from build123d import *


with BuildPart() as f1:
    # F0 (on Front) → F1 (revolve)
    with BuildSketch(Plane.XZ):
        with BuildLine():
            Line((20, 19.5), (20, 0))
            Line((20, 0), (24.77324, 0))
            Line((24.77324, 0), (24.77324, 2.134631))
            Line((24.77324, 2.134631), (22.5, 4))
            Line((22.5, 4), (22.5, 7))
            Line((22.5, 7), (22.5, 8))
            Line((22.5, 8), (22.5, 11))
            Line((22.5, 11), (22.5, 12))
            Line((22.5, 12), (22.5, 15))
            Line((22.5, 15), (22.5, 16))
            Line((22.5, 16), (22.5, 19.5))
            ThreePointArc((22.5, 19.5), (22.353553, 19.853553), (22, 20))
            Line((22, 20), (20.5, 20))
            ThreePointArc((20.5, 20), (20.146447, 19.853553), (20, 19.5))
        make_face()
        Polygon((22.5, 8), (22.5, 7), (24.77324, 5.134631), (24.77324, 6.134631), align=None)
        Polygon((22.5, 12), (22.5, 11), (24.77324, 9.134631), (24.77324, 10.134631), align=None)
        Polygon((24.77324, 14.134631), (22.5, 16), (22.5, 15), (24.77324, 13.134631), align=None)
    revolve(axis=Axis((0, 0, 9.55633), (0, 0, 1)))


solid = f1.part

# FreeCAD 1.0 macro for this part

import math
import FreeCAD as App
import Part
import Sketcher
from FreeCAD import Vector

doc = App.newDocument("Part")
params = doc.addObject("Spreadsheet::Sheet", "Params")
for row, (alias, value) in enumerate([
    ("sketch1_radius", "0.500001 mm"),
    ("sketch1_height", "3 mm"),
    ("sketch1_height2", "1 mm"),
    ("sketch1_width", "1.5 mm"),
    ("sketch1_height3", "19.5 mm"),
    ("revolution_angle", "360 deg"),
], start=1):
    params.set(f"A{row}", alias)
    params.set(f"B{row}", "=" + value)
    params.setAlias(f"B{row}", alias)

body = doc.addObject("PartDesign::Body", "Body")

# Sketch on XZ plane
sketch1 = body.newObject("Sketcher::SketchObject", "Sketch")
sketch1.AttachmentSupport = (doc.getObject("XZ_Plane"), [""])
sketch1.MapMode = "FlatFace"
sketch1.addGeometry([
    Part.LineSegment(Vector(20, 19.5, 0), Vector(20, 0, 0)),  # 0
    Part.LineSegment(Vector(20, 0, 0), Vector(24.8, 0, 0)),  # 1
    Part.LineSegment(Vector(24.8, 0, 0), Vector(24.8, 2.1, 0)),  # 2
    Part.LineSegment(Vector(24.8, 2.1, 0), Vector(22.5, 4, 0)),  # 3
    Part.LineSegment(Vector(22.5, 4, 0), Vector(22.5, 7, 0)),  # 4
    Part.LineSegment(Vector(22.5, 7, 0), Vector(24.8, 5.1, 0)),  # 5
    Part.LineSegment(Vector(24.8, 5.1, 0), Vector(24.8, 6.1, 0)),  # 6
    Part.LineSegment(Vector(24.8, 6.1, 0), Vector(22.5, 8, 0)),  # 7
    Part.LineSegment(Vector(22.5, 8, 0), Vector(22.5, 11, 0)),  # 8
    Part.LineSegment(Vector(22.5, 11, 0), Vector(24.8, 9.1, 0)),  # 9
    Part.LineSegment(Vector(24.8, 9.1, 0), Vector(24.8, 10.1, 0)),  # 10
    Part.LineSegment(Vector(24.8, 10.1, 0), Vector(22.5, 12, 0)),  # 11
    Part.LineSegment(Vector(22.5, 12, 0), Vector(22.5, 15, 0)),  # 12
    Part.LineSegment(Vector(22.5, 15, 0), Vector(24.8, 13.1, 0)),  # 13
    Part.LineSegment(Vector(24.8, 13.1, 0), Vector(24.8, 14.1, 0)),  # 14
    Part.LineSegment(Vector(24.8, 14.1, 0), Vector(22.5, 16, 0)),  # 15
    Part.LineSegment(Vector(22.5, 16, 0), Vector(22.5, 19.5, 0)),  # 16
    Part.ArcOfCircle(Part.Circle(Vector(22, 19.5, 0), Vector(0, 0, 1), 0.5), math.radians(0), math.radians(90)),  # 17
    Part.LineSegment(Vector(22, 20, 0), Vector(20.5, 20, 0)),  # 18
    Part.ArcOfCircle(Part.Circle(Vector(20.5, 19.5, 0), Vector(0, 0, 1), 0.5), math.radians(90), math.radians(180)),  # 19
], False)
sketch1.addConstraint([
    Sketcher.Constraint("Coincident", 0, 2, 1, 1),
    Sketcher.Constraint("Coincident", 1, 2, 2, 1),
    Sketcher.Constraint("Coincident", 2, 2, 3, 1),
    Sketcher.Constraint("Coincident", 3, 2, 4, 1),
    Sketcher.Constraint("Coincident", 4, 2, 5, 1),
    Sketcher.Constraint("Coincident", 5, 2, 6, 1),
    Sketcher.Constraint("Coincident", 6, 2, 7, 1),
    Sketcher.Constraint("Coincident", 7, 2, 8, 1),
    Sketcher.Constraint("Coincident", 8, 2, 9, 1),
    Sketcher.Constraint("Coincident", 9, 2, 10, 1),
    Sketcher.Constraint("Coincident", 10, 2, 11, 1),
    Sketcher.Constraint("Coincident", 11, 2, 12, 1),
    Sketcher.Constraint("Coincident", 12, 2, 13, 1),
    Sketcher.Constraint("Coincident", 13, 2, 14, 1),
    Sketcher.Constraint("Coincident", 14, 2, 15, 1),
    Sketcher.Constraint("Coincident", 15, 2, 16, 1),
    Sketcher.Constraint("Coincident", 16, 2, 17, 1),
    Sketcher.Constraint("Coincident", 17, 2, 18, 1),
    Sketcher.Constraint("Coincident", 18, 2, 19, 1),
    Sketcher.Constraint("Coincident", 19, 2, 0, 1),
    Sketcher.Constraint("Vertical", 0),
    Sketcher.Constraint("Horizontal", 1),
    Sketcher.Constraint("Vertical", 2),
    Sketcher.Constraint("Vertical", 4),
    Sketcher.Constraint("Vertical", 6),
    Sketcher.Constraint("Vertical", 8),
    Sketcher.Constraint("Vertical", 10),
    Sketcher.Constraint("Vertical", 12),
    Sketcher.Constraint("Vertical", 14),
    Sketcher.Constraint("Vertical", 16),
    Sketcher.Constraint("Horizontal", 18),
    Sketcher.Constraint("Equal", 17, 19),
    Sketcher.Constraint("PointOnObject", 0, 2, -1),
    Sketcher.Constraint("Parallel", 3, 5),
    Sketcher.Constraint("Parallel", 5, 7),
    Sketcher.Constraint("Parallel", 7, 9),
    Sketcher.Constraint("Parallel", 9, 11),
    Sketcher.Constraint("Parallel", 11, 13),
    Sketcher.Constraint("Parallel", 13, 15),
    Sketcher.Constraint("Horizontal", 19, 3, 16, 2),
    Sketcher.Constraint("Horizontal", 16, 2, 19, 2),
    Sketcher.Constraint("Vertical", 2, 2, 5, 2),
    Sketcher.Constraint("Vertical", 4, 2, 7, 2),
    Sketcher.Constraint("Vertical", 6, 2, 9, 2),
    Sketcher.Constraint("Vertical", 8, 2, 11, 2),
    Sketcher.Constraint("Vertical", 10, 2, 13, 2),
    Sketcher.Constraint("Vertical", 12, 2, 15, 2),
    Sketcher.Constraint("Vertical", 19, 3, 18, 2),
    Sketcher.Constraint("Equal", 4, 8),
    Sketcher.Constraint("Equal", 6, 10),
    Sketcher.Constraint("Equal", 8, 12),
    Sketcher.Constraint("Equal", 10, 14),
    Sketcher.Constraint("Radius", 17, 0.500001),
    Sketcher.Constraint("DistanceY", 4, 1, 4, 2, 3.0),
    Sketcher.Constraint("DistanceY", 6, 1, 6, 2, 1.0),
    Sketcher.Constraint("DistanceX", 18, 2, 18, 1, 1.5),
    Sketcher.Constraint("DistanceY", 0, 2, 0, 1, 19.5),
    Sketcher.Constraint("DistanceY", 16, 1, 16, 2, 3.5),
    Sketcher.Constraint("DistanceX", -1, 1, 17, 3, 21.999999),
    Sketcher.Constraint("DistanceX", -1, 1, 0, 2, 20.0),
    Sketcher.Constraint("DistanceX", 1, 1, 1, 2, 4.77324),
    Sketcher.Constraint("DistanceY", 2, 1, 2, 2, 2.134631),
])
sketch1.setExpression("Constraints[52]", "Params.sketch1_radius")
sketch1.setExpression("Constraints[53]", "Params.sketch1_height")
sketch1.setExpression("Constraints[54]", "Params.sketch1_height2")
sketch1.setExpression("Constraints[55]", "Params.sketch1_width")
sketch1.setExpression("Constraints[56]", "Params.sketch1_height3")
revolution = body.newObject("PartDesign::Revolution", "Revolution")
revolution.Profile = sketch1
revolution.ReferenceAxis = (sketch1, ["V_Axis"])
revolution.setExpression("Angle", "Params.revolution_angle")

doc.recompute()
